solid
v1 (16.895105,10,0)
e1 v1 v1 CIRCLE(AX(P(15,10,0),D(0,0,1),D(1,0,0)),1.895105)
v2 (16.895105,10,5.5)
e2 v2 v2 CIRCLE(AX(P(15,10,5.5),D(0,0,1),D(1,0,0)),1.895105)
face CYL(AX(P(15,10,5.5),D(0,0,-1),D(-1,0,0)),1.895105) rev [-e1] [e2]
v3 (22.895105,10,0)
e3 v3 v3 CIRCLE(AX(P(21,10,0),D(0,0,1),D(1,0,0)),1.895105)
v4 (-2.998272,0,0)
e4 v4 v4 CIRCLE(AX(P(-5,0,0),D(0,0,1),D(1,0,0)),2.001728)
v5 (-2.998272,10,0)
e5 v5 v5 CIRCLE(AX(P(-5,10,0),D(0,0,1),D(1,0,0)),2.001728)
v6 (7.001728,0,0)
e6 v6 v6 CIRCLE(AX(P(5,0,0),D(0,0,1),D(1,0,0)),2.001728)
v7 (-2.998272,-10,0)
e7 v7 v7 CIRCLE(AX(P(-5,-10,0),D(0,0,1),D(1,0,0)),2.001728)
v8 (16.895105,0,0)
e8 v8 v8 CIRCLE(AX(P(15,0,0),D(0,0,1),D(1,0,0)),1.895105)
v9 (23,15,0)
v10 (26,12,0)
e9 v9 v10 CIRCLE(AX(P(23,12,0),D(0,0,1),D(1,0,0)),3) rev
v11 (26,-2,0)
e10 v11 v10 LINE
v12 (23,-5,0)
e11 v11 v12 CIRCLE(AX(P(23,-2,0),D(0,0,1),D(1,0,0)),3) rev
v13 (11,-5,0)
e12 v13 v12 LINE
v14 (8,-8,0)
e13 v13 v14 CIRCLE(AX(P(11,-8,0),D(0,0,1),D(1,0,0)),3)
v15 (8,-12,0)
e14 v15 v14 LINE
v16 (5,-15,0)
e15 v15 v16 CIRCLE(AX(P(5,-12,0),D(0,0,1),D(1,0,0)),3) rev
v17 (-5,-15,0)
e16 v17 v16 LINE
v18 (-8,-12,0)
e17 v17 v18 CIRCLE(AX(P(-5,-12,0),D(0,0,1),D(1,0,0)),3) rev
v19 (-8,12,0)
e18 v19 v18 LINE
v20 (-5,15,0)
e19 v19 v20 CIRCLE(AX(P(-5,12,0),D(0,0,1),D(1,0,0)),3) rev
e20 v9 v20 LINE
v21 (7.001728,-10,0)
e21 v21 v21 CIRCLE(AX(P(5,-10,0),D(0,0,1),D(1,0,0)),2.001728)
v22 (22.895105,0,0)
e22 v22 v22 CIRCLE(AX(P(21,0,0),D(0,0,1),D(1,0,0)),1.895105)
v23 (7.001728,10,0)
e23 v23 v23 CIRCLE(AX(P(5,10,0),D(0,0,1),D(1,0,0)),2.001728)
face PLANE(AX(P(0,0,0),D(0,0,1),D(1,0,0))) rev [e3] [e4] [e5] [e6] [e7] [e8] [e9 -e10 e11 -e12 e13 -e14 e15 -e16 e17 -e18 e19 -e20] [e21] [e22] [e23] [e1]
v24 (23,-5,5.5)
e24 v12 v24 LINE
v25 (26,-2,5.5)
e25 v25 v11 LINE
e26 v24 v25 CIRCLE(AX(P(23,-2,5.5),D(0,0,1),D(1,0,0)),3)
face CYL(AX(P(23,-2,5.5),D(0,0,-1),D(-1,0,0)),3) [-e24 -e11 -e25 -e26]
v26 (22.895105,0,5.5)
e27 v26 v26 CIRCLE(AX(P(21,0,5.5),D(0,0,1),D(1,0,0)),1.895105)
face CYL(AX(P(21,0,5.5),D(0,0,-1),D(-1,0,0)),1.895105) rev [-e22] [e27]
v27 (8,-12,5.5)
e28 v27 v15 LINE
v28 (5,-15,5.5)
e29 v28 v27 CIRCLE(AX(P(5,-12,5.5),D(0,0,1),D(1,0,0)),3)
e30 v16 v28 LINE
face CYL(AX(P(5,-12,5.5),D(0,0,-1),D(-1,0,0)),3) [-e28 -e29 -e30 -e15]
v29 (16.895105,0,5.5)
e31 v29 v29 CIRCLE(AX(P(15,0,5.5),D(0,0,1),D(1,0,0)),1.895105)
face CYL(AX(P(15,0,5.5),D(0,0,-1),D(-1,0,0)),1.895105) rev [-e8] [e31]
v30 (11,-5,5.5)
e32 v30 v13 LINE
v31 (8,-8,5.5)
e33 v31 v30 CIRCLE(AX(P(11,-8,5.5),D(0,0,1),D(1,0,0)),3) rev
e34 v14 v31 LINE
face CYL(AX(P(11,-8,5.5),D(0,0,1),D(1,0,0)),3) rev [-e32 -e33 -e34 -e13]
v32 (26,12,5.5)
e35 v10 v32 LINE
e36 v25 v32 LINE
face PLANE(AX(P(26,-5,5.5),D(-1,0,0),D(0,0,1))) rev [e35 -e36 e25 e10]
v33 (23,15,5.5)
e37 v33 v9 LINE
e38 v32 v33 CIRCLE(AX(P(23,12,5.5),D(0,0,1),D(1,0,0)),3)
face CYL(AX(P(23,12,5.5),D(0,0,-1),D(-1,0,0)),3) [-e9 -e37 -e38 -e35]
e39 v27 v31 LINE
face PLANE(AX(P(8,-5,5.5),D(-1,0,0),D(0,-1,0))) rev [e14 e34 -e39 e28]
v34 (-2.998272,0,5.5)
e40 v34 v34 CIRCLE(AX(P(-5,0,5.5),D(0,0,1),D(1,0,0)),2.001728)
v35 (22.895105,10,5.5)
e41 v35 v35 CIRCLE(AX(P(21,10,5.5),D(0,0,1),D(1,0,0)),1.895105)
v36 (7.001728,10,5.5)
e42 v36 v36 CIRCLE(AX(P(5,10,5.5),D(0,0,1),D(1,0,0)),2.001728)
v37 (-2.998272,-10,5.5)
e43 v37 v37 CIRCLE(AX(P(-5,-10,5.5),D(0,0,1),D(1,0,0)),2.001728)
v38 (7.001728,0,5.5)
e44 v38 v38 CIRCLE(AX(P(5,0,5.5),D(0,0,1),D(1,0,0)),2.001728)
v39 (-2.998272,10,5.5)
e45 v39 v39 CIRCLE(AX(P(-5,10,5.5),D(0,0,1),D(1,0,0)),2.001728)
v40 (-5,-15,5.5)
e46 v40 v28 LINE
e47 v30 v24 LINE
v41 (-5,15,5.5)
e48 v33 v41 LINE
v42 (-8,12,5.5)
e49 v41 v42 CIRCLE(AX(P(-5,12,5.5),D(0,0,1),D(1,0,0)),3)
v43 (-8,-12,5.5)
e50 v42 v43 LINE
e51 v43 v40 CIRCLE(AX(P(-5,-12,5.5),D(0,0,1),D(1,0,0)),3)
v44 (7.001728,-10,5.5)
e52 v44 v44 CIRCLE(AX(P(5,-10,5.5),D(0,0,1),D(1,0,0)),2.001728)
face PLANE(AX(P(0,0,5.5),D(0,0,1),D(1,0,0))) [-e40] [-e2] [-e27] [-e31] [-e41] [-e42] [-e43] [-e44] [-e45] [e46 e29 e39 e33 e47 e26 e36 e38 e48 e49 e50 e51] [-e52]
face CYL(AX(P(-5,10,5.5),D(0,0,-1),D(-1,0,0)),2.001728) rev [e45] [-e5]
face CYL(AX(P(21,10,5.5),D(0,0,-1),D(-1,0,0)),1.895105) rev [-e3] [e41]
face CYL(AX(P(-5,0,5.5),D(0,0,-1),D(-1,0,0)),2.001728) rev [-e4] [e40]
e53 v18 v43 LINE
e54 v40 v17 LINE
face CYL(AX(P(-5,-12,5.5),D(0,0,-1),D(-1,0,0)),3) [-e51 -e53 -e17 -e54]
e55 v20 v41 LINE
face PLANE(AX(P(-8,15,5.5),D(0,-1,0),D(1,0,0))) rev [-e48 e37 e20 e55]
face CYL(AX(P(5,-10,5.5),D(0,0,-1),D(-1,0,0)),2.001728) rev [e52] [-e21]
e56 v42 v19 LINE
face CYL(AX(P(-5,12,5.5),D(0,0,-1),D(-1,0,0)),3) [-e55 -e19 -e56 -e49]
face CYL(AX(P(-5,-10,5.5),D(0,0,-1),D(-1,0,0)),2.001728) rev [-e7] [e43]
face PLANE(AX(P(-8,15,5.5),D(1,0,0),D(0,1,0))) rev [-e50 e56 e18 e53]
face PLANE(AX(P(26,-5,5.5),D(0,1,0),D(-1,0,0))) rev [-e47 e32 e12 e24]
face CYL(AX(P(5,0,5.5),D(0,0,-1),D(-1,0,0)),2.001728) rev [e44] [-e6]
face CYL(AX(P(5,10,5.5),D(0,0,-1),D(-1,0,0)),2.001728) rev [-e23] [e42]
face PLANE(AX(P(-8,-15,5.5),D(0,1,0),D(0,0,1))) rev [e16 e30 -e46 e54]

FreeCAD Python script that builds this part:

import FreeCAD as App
import Part
import Sketcher
Q = App.Units.Quantity


def edges_at(feature, points):
    """Names of the edges that pass closest to the given points."""
    edges = feature.Shape.Edges
    near = lambda p: min(range(len(edges)), key=lambda i: edges[i].distToShape(Part.Vertex(*p))[0])
    return sorted({f"Edge{near(p) + 1}" for p in points})


def add_polygon(sketch, points):
    """Adds a closed chain of lines whose ends are joined by coincident constraints."""
    first, n = sketch.GeometryCount, len(points)
    for a, b in zip(points, points[1:] + points[:1]):
        sketch.addGeometry(Part.LineSegment(App.Vector(*a, 0), App.Vector(*b, 0)), False)
    for i in range(n):
        sketch.addConstraint(Sketcher.Constraint("Coincident", first + i, 2, first + (i + 1) % n, 1))

doc = App.newDocument("Part")
body = doc.addObject("PartDesign::Body", "Body")

# Sketch on XY plane
sketch1 = body.newObject("Sketcher::SketchObject", "Sketch")
sketch1.AttachmentSupport = (doc.getObject("XY_Plane"), [""])
sketch1.MapMode = "FlatFace"
add_polygon(sketch1, [(26, 15), (-8, 15), (-8, -15), (8, -15), (8, -5), (26, -5)])  # lines 0-5
sketch1.addGeometry(Part.Circle(App.Vector(5, -10, 0), App.Vector(0, 0, 1), 2), False)  # 6
sketch1.addGeometry(Part.Circle(App.Vector(-5, -10, 0), App.Vector(0, 0, 1), 2), False)  # 7
sketch1.addGeometry(Part.Circle(App.Vector(21, 0, 0), App.Vector(0, 0, 1), 1.9), False)  # 8
sketch1.addGeometry(Part.Circle(App.Vector(15, 0, 0), App.Vector(0, 0, 1), 1.9), False)  # 9
sketch1.addGeometry(Part.Circle(App.Vector(21, 10, 0), App.Vector(0, 0, 1), 1.9), False)  # 10
sketch1.addGeometry(Part.Circle(App.Vector(15, 10, 0), App.Vector(0, 0, 1), 1.9), False)  # 11
sketch1.addGeometry(Part.Circle(App.Vector(5, 0, 0), App.Vector(0, 0, 1), 2), False)  # 12
sketch1.addGeometry(Part.Circle(App.Vector(-5, 0, 0), App.Vector(0, 0, 1), 2), False)  # 13
sketch1.addGeometry(Part.Circle(App.Vector(5, 10, 0), App.Vector(0, 0, 1), 2), False)  # 14
sketch1.addGeometry(Part.Circle(App.Vector(-5, 10, 0), App.Vector(0, 0, 1), 2), False)  # 15
sketch1.addConstraint([
    Sketcher.Constraint("Horizontal", 0),
    Sketcher.Constraint("Vertical", 1),
    Sketcher.Constraint("Horizontal", 2),
    Sketcher.Constraint("Vertical", 3),
    Sketcher.Constraint("Horizontal", 4),
    Sketcher.Constraint("Vertical", 5),
    Sketcher.Constraint("Equal", 6, 7),
    Sketcher.Constraint("Equal", 8, 9),
    Sketcher.Constraint("Equal", 9, 10),
    Sketcher.Constraint("Equal", 10, 11),
    Sketcher.Constraint("Equal", 7, 12),
    Sketcher.Constraint("Equal", 12, 13),
    Sketcher.Constraint("Equal", 13, 14),
    Sketcher.Constraint("Equal", 14, 15),
    Sketcher.Constraint("Symmetric", 12, 3, 13, 3, -1, 1),
    Sketcher.Constraint("Symmetric", 7, 3, 14, 3, -1, 1),
    Sketcher.Constraint("Symmetric", 6, 3, 15, 3, -1, 1),
    Sketcher.Constraint("Symmetric", 0, 2, 2, 2, -1, 1),
    Sketcher.Constraint("Symmetric", 6, 3, 7, 3, -2),
    Sketcher.Constraint("PointOnObject", 8, 3, -1),
    Sketcher.Constraint("PointOnObject", 9, 3, -1),
    Sketcher.Constraint("PointOnObject", 12, 3, -1),
    Sketcher.Constraint("Horizontal", 10, 3, 11, 3),
    Sketcher.Constraint("Horizontal", 11, 3, 14, 3),
    Sketcher.Constraint("Vertical", 8, 3, 10, 3),
    Sketcher.Constraint("Vertical", 9, 3, 11, 3),
    Sketcher.Constraint("Vertical", 6, 3, 12, 3),
    Sketcher.Constraint("DistanceX", 0, 2, 0, 1, Q("34 mm")),
    Sketcher.Constraint("DistanceX", 2, 1, 2, 2, Q("16 mm")),
    Sketcher.Constraint("DistanceY", 1, 2, 1, 1, Q("30 mm")),
    Sketcher.Constraint("DistanceY", 3, 1, 3, 2, Q("10 mm")),
    Sketcher.Constraint("DistanceX", -1, 1, 6, 3, Q("5 mm")),
    Sketcher.Constraint("DistanceY", 6, 3, -1, 1, Q("10 mm")),
    Sketcher.Constraint("DistanceX", -1, 1, 8, 3, Q("21 mm")),
    Sketcher.Constraint("DistanceX", -1, 1, 9, 3, Q("15 mm")),
    Sketcher.Constraint("Diameter", 8, Q("3.790211 mm")),
    Sketcher.Constraint("Diameter", 6, Q("4.003455 mm")),
])
pad1 = body.newObject("PartDesign::Pad", "Pad")
pad1.Profile = sketch1
pad1.Length = 5.5
doc.recompute()

fillet = body.newObject("PartDesign::Fillet", "Fillet")
fillet.Base = (pad1, edges_at(pad1, [
    (8, -15, 2.75),
    (-8, -15, 2.75),
    (-8, 15, 2.75),
    (26, 15, 2.75),
    (26, -5, 2.75),
    (8, -5, 2.75),
]))
fillet.Radius = 3

doc.recompute()
